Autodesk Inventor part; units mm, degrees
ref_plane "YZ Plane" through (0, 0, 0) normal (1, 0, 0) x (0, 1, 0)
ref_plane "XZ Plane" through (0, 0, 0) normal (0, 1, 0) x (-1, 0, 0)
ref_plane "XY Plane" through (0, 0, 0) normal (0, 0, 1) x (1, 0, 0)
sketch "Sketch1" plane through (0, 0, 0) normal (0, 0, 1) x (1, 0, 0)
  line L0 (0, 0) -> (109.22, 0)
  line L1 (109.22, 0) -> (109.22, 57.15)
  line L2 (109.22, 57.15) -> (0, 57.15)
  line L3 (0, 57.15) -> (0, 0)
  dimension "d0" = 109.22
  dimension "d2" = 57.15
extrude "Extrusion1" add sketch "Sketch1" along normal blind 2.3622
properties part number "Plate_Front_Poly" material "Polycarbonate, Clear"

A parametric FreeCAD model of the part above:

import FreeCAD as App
import Part
import Sketcher
Q = App.Units.Quantity

doc = App.newDocument("Part")
body = doc.addObject("PartDesign::Body", "Body")

sketch1 = body.newObject("Sketcher::SketchObject", "Sketch")
sketch1.AttachmentSupport = (doc.getObject("XY_Plane"), [""])
sketch1.MapMode = "FlatFace"
sketch1.addGeometry([
    Part.LineSegment(App.Vector(0, 57, 0), App.Vector(0, 0, 0)),
    Part.LineSegment(App.Vector(0, 0, 0), App.Vector(109, 0, 0)),
    Part.LineSegment(App.Vector(109, 0, 0), App.Vector(109, 57, 0)),
    Part.LineSegment(App.Vector(109, 57, 0), App.Vector(0, 57, 0)),
], False)
sketch1.addConstraint([
    Sketcher.Constraint("Coincident", 0, 2, 1, 1),
    Sketcher.Constraint("Coincident", 1, 2, 2, 1),
    Sketcher.Constraint("Coincident", 2, 2, 3, 1),
    Sketcher.Constraint("Coincident", 3, 2, 0, 1),
    Sketcher.Constraint("Vertical", 0),
    Sketcher.Constraint("Horizontal", 1),
    Sketcher.Constraint("Vertical", 2),
    Sketcher.Constraint("Horizontal", 3),
    Sketcher.Constraint("Coincident", 0, 2, -1, 1),
    Sketcher.Constraint("DistanceX", 1, 1, 1, 2, Q("4.3 in")),
    Sketcher.Constraint("DistanceY", 0, 2, 0, 1, Q("2.25 in")),
])
pad1 = body.newObject("PartDesign::Pad", "Pad")
pad1.Profile = sketch1
pad1.Length = Q("0.093 in")

doc.recompute()
